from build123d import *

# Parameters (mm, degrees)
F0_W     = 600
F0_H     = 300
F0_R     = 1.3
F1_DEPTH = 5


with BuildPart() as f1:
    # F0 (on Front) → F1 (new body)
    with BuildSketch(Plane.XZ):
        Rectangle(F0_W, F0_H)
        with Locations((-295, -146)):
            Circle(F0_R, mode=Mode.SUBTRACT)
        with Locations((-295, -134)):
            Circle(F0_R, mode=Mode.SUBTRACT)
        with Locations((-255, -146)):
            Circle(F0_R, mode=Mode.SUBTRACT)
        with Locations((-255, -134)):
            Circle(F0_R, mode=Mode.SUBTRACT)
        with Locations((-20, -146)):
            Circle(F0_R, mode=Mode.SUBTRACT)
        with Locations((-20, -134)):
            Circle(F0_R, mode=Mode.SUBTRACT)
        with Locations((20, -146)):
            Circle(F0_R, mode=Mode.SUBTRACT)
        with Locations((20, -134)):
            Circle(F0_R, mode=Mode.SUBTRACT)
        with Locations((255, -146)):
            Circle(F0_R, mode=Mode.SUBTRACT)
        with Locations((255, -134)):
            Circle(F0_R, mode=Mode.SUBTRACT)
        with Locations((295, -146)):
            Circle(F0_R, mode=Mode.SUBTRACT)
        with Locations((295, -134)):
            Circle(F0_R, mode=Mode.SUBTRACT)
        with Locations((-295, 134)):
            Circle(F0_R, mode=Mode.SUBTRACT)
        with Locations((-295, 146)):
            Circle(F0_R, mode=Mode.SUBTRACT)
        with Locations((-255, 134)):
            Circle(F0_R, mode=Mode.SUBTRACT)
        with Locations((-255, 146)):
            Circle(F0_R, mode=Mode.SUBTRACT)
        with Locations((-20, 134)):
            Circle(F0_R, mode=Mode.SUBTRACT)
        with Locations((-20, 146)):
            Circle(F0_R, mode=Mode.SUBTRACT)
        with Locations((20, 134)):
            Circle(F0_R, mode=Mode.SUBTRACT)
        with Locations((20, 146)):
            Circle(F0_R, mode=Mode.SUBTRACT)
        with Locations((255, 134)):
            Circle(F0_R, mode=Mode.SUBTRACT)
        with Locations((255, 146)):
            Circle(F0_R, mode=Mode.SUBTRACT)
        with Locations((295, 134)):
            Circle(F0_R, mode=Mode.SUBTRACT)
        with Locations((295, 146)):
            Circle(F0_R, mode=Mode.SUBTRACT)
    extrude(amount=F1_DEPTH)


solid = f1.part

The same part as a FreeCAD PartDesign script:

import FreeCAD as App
import Part
import Sketcher

V = App.Vector


def add_polygon(sketch, points):
    """Adds a closed chain of lines whose ends are joined by coincident constraints."""
    first, n = sketch.GeometryCount, len(points)
    for a, b in zip(points, points[1:] + points[:1]):
        sketch.addGeometry(Part.LineSegment(App.Vector(*a, 0), App.Vector(*b, 0)), False)
    for i in range(n):
        sketch.addConstraint(Sketcher.Constraint("Coincident", first + i, 2, first + (i + 1) % n, 1))

doc = App.newDocument("Part")
body = doc.addObject("PartDesign::Body", "Body")

# Sketch on XZ plane
sketch1 = body.newObject("Sketcher::SketchObject", "Sketch")
sketch1.AttachmentSupport = (doc.getObject("XZ_Plane"), [""])
sketch1.MapMode = "FlatFace"
add_polygon(sketch1, [(-300, 150), (-300, -150), (300, -150), (300, 150)])  # lines 0-3
sketch1.addGeometry(Part.Circle(V(-295, -146, 0), V(0, 0, 1), 1.3), False)  # 4
sketch1.addGeometry(Part.Circle(V(-295, -134, 0), V(0, 0, 1), 1.3), False)  # 5
sketch1.addGeometry(Part.Circle(V(-255, -146, 0), V(0, 0, 1), 1.3), False)  # 6
sketch1.addGeometry(Part.Circle(V(-255, -134, 0), V(0, 0, 1), 1.3), False)  # 7
sketch1.addGeometry(Part.Circle(V(-20, -146, 0), V(0, 0, 1), 1.3), False)  # 8
sketch1.addGeometry(Part.Circle(V(-20, -134, 0), V(0, 0, 1), 1.3), False)  # 9
sketch1.addGeometry(Part.Circle(V(20, -146, 0), V(0, 0, 1), 1.3), False)  # 10
sketch1.addGeometry(Part.Circle(V(20, -134, 0), V(0, 0, 1), 1.3), False)  # 11
sketch1.addGeometry(Part.Circle(V(255, -146, 0), V(0, 0, 1), 1.3), False)  # 12
sketch1.addGeometry(Part.Circle(V(255, -134, 0), V(0, 0, 1), 1.3), False)  # 13
sketch1.addGeometry(Part.Circle(V(295, -146, 0), V(0, 0, 1), 1.3), False)  # 14
sketch1.addGeometry(Part.Circle(V(295, -134, 0), V(0, 0, 1), 1.3), False)  # 15
sketch1.addGeometry(Part.Circle(V(-295, 134, 0), V(0, 0, 1), 1.3), False)  # 16
sketch1.addGeometry(Part.Circle(V(-295, 146, 0), V(0, 0, 1), 1.3), False)  # 17
sketch1.addGeometry(Part.Circle(V(-255, 134, 0), V(0, 0, 1), 1.3), False)  # 18
sketch1.addGeometry(Part.Circle(V(-255, 146, 0), V(0, 0, 1), 1.3), False)  # 19
sketch1.addGeometry(Part.Circle(V(-20, 134, 0), V(0, 0, 1), 1.3), False)  # 20
sketch1.addGeometry(Part.Circle(V(-20, 146, 0), V(0, 0, 1), 1.3), False)  # 21
sketch1.addGeometry(Part.Circle(V(20, 134, 0), V(0, 0, 1), 1.3), False)  # 22
sketch1.addGeometry(Part.Circle(V(20, 146, 0), V(0, 0, 1), 1.3), False)  # 23
sketch1.addGeometry(Part.Circle(V(255, 134, 0), V(0, 0, 1), 1.3), False)  # 24
sketch1.addGeometry(Part.Circle(V(255, 146, 0), V(0, 0, 1), 1.3), False)  # 25
sketch1.addGeometry(Part.Circle(V(295, 134, 0), V(0, 0, 1), 1.3), False)  # 26
sketch1.addGeometry(Part.Circle(V(295, 146, 0), V(0, 0, 1), 1.3), False)  # 27
sketch1.addConstraint(Sketcher.Constraint("Vertical", 0))
sketch1.addConstraint(Sketcher.Constraint("Horizontal", 1))
sketch1.addConstraint(Sketcher.Constraint("Vertical", 2))
sketch1.addConstraint(Sketcher.Constraint("Horizontal", 3))
sketch1.addConstraint(Sketcher.Constraint("Equal", 4, 5))
sketch1.addConstraint(Sketcher.Constraint("Equal", 5, 6))
sketch1.addConstraint(Sketcher.Constraint("Equal", 6, 7))
sketch1.addConstraint(Sketcher.Constraint("Equal", 7, 8))
sketch1.addConstraint(Sketcher.Constraint("Equal", 8, 9))
sketch1.addConstraint(Sketcher.Constraint("Equal", 9, 10))
sketch1.addConstraint(Sketcher.Constraint("Equal", 10, 11))
sketch1.addConstraint(Sketcher.Constraint("Equal", 11, 12))
sketch1.addConstraint(Sketcher.Constraint("Equal", 12, 13))
sketch1.addConstraint(Sketcher.Constraint("Equal", 13, 14))
sketch1.addConstraint(Sketcher.Constraint("Equal", 14, 15))
sketch1.addConstraint(Sketcher.Constraint("Equal", 15, 16))
sketch1.addConstraint(Sketcher.Constraint("Equal", 16, 17))
sketch1.addConstraint(Sketcher.Constraint("Equal", 17, 18))
sketch1.addConstraint(Sketcher.Constraint("Equal", 18, 19))
sketch1.addConstraint(Sketcher.Constraint("Equal", 19, 20))
sketch1.addConstraint(Sketcher.Constraint("Equal", 20, 21))
sketch1.addConstraint(Sketcher.Constraint("Equal", 21, 22))
sketch1.addConstraint(Sketcher.Constraint("Equal", 22, 23))
sketch1.addConstraint(Sketcher.Constraint("Equal", 23, 24))
sketch1.addConstraint(Sketcher.Constraint("Equal", 24, 25))
sketch1.addConstraint(Sketcher.Constraint("Equal", 25, 26))
sketch1.addConstraint(Sketcher.Constraint("Equal", 26, 27))
sketch1.addConstraint(Sketcher.Constraint("Symmetric", 15, 3, 16, 3, -1, 1))
sketch1.addConstraint(Sketcher.Constraint("Symmetric", 14, 3, 17, 3, -1, 1))
sketch1.addConstraint(Sketcher.Constraint("Symmetric", 13, 3, 18, 3, -1, 1))
sketch1.addConstraint(Sketcher.Constraint("Symmetric", 12, 3, 19, 3, -1, 1))
sketch1.addConstraint(Sketcher.Constraint("Symmetric", 11, 3, 20, 3, -1, 1))
sketch1.addConstraint(Sketcher.Constraint("Symmetric", 10, 3, 21, 3, -1, 1))
sketch1.addConstraint(Sketcher.Constraint("Symmetric", 9, 3, 22, 3, -1, 1))
sketch1.addConstraint(Sketcher.Constraint("Symmetric", 8, 3, 23, 3, -1, 1))
sketch1.addConstraint(Sketcher.Constraint("Symmetric", 7, 3, 24, 3, -1, 1))
sketch1.addConstraint(Sketcher.Constraint("Symmetric", 6, 3, 25, 3, -1, 1))
sketch1.addConstraint(Sketcher.Constraint("Symmetric", 5, 3, 26, 3, -1, 1))
sketch1.addConstraint(Sketcher.Constraint("Symmetric", 4, 3, 27, 3, -1, 1))
sketch1.addConstraint(Sketcher.Constraint("Symmetric", 0, 2, 2, 2, -1, 1))
sketch1.addConstraint(Sketcher.Constraint("Symmetric", 8, 3, 10, 3, -2))
sketch1.addConstraint(Sketcher.Constraint("Symmetric", 9, 3, 11, 3, -2))
sketch1.addConstraint(Sketcher.Constraint("Symmetric", 6, 3, 12, 3, -2))
sketch1.addConstraint(Sketcher.Constraint("Symmetric", 7, 3, 13, 3, -2))
sketch1.addConstraint(Sketcher.Constraint("Symmetric", 4, 3, 14, 3, -2))
sketch1.addConstraint(Sketcher.Constraint("Symmetric", 5, 3, 15, 3, -2))
sketch1.addConstraint(Sketcher.Constraint("Horizontal", 4, 3, 6, 3))
sketch1.addConstraint(Sketcher.Constraint("Horizontal", 5, 3, 7, 3))
sketch1.addConstraint(Sketcher.Constraint("Horizontal", 6, 3, 8, 3))
sketch1.addConstraint(Sketcher.Constraint("Horizontal", 7, 3, 9, 3))
sketch1.addConstraint(Sketcher.Constraint("Vertical", 4, 3, 5, 3))
sketch1.addConstraint(Sketcher.Constraint("Vertical", 6, 3, 7, 3))
sketch1.addConstraint(Sketcher.Constraint("Vertical", 8, 3, 9, 3))
sketch1.addConstraint(Sketcher.Constraint("Diameter", 4, 2.6))
sketch1.addConstraint(Sketcher.Constraint("DistanceX", 1, 1, 1, 2, 600.0))
sketch1.addConstraint(Sketcher.Constraint("DistanceY", 0, 2, 0, 1, 300.0))
sketch1.addConstraint(Sketcher.Constraint("DistanceX", 4, 3, -1, 1, 295.0))
sketch1.addConstraint(Sketcher.Constraint("DistanceY", 4, 3, -1, 1, 146.0))
sketch1.addConstraint(Sketcher.Constraint("DistanceY", 5, 3, -1, 1, 134.0))
sketch1.addConstraint(Sketcher.Constraint("DistanceX", 6, 3, -1, 1, 255.0))
sketch1.addConstraint(Sketcher.Constraint("DistanceX", 8, 3, -1, 1, 20.0))
pad1 = body.newObject("PartDesign::Pad", "Pad")
pad1.Profile = sketch1
pad1.Length = 5

doc.recompute()
